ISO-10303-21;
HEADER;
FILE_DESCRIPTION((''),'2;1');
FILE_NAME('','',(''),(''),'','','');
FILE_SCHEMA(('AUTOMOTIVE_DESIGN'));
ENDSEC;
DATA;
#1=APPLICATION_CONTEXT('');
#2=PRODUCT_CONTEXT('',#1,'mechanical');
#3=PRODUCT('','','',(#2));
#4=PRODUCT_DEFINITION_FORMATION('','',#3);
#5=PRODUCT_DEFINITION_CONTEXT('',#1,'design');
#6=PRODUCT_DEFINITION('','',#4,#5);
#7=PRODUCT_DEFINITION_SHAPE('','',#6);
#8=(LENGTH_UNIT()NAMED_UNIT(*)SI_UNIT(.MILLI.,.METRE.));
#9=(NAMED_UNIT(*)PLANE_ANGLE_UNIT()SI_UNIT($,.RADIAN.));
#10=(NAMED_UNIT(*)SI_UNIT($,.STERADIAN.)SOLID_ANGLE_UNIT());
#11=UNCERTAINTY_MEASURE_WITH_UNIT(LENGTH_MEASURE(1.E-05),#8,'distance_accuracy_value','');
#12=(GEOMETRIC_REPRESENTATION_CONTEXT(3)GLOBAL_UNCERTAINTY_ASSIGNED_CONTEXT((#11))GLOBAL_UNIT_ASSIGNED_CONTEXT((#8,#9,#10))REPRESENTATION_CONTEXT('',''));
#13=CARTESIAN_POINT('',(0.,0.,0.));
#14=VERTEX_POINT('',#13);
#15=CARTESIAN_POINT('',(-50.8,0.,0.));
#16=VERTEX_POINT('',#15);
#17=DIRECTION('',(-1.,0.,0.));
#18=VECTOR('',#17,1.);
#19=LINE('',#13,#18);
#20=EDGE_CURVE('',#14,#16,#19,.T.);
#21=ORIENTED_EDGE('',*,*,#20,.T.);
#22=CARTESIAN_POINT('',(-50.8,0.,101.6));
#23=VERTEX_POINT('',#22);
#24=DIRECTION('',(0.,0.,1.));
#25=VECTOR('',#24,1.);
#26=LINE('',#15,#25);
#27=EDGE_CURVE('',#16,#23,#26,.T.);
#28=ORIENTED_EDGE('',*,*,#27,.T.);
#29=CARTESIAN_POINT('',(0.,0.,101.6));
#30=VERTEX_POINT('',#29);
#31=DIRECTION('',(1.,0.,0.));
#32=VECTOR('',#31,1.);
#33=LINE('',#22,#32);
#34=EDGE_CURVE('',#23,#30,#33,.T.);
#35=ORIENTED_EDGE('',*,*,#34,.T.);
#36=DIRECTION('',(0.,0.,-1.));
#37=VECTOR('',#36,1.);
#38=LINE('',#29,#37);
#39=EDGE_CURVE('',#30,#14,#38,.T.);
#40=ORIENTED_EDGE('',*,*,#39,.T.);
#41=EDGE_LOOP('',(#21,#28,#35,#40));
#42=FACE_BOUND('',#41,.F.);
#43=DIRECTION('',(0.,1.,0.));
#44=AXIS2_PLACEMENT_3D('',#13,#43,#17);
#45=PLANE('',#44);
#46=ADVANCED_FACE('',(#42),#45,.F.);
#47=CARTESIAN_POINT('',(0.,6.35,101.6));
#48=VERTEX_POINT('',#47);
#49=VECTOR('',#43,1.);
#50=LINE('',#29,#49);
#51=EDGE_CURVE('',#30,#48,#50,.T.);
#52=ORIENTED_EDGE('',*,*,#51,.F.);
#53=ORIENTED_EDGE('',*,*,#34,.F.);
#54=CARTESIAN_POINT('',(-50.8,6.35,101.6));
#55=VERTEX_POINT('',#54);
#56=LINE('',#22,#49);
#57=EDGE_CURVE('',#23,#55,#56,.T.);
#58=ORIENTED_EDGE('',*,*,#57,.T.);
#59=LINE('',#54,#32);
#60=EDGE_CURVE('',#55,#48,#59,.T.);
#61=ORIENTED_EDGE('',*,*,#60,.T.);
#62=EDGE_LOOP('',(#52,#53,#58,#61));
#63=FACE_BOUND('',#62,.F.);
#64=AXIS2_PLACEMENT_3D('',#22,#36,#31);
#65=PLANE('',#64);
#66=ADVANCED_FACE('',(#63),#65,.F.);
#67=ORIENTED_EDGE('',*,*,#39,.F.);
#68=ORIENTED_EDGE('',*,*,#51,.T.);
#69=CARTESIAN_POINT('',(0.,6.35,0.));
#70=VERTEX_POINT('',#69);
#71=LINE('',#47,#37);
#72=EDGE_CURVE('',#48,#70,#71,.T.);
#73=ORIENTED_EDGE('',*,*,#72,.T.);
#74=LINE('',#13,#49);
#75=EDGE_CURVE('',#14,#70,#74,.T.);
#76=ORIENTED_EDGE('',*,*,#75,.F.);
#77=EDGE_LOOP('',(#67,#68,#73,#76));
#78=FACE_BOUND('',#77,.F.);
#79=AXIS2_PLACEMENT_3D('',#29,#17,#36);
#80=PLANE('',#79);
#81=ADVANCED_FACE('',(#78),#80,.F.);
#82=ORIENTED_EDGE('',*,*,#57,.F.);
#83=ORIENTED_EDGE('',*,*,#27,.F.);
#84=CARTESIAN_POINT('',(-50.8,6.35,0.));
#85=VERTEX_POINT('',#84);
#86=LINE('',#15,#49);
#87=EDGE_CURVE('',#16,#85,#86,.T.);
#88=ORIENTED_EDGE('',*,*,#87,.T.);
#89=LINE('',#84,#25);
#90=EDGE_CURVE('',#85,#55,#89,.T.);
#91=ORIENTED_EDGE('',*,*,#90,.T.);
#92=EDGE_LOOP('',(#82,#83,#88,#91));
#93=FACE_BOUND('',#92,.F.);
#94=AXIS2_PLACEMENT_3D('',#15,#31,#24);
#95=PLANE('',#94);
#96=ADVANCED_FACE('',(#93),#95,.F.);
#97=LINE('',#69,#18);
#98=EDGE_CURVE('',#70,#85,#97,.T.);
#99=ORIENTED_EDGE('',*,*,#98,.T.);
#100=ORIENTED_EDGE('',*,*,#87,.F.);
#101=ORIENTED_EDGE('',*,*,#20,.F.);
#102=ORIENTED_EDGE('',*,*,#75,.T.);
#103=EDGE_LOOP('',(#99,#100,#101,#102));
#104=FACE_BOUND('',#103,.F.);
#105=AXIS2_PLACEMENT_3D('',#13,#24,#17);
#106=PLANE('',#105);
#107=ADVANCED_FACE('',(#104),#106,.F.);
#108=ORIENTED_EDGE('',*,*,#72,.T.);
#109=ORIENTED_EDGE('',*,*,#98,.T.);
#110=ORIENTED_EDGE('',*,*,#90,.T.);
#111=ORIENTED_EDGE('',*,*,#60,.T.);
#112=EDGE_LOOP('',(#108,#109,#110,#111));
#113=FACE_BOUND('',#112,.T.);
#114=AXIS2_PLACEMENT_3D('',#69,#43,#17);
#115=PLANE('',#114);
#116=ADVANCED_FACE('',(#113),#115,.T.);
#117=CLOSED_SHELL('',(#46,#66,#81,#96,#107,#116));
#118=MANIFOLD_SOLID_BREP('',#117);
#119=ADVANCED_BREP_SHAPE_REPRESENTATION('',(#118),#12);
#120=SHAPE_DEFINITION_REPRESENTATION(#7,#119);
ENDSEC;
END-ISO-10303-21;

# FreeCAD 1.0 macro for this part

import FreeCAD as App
import Part
import Sketcher
from FreeCAD import Vector
Q = App.Units.Quantity


def add_polygon(sketch, points):
    """Adds a closed chain of lines whose ends are joined by coincident constraints."""
    first, n = sketch.GeometryCount, len(points)
    for a, b in zip(points, points[1:] + points[:1]):
        sketch.addGeometry(Part.LineSegment(App.Vector(*a, 0), App.Vector(*b, 0)), False)
    for i in range(n):
        sketch.addConstraint(Sketcher.Constraint("Coincident", first + i, 2, first + (i + 1) % n, 1))

doc = App.newDocument("Part")
body = doc.addObject("PartDesign::Body", "Body")

sketch1 = doc.addObject("Sketcher::SketchObject", "Sketch")
body.addObject(sketch1)
sketch1.AttachmentSupport = (doc.XZ_Plane, [""])
sketch1.MapMode = "FlatFace"
add_polygon(sketch1, [(0, 101.6), (0, 0), (-50.8, 0), (-50.8, 101.6)])
sketch1.addConstraint(Sketcher.Constraint("Vertical", 0))
sketch1.addConstraint(Sketcher.Constraint("Horizontal", 1))
sketch1.addConstraint(Sketcher.Constraint("Vertical", 2))
sketch1.addConstraint(Sketcher.Constraint("Horizontal", 3))
sketch1.addConstraint(Sketcher.Constraint("Coincident", 0, 2, -1, 1))
sketch1.addConstraint(Sketcher.Constraint("DistanceX", 1, 2, 1, 1, Q("2 in")))
sketch1.addConstraint(Sketcher.Constraint("DistanceY", 0, 2, 0, 1, Q("4 in")))
pad1 = doc.addObject("PartDesign::Pad", "Pad")
body.addObject(pad1)
pad1.Profile = sketch1
pad1.Length = Q("0.25 in")
pad1.Reversed = True

doc.recompute()
